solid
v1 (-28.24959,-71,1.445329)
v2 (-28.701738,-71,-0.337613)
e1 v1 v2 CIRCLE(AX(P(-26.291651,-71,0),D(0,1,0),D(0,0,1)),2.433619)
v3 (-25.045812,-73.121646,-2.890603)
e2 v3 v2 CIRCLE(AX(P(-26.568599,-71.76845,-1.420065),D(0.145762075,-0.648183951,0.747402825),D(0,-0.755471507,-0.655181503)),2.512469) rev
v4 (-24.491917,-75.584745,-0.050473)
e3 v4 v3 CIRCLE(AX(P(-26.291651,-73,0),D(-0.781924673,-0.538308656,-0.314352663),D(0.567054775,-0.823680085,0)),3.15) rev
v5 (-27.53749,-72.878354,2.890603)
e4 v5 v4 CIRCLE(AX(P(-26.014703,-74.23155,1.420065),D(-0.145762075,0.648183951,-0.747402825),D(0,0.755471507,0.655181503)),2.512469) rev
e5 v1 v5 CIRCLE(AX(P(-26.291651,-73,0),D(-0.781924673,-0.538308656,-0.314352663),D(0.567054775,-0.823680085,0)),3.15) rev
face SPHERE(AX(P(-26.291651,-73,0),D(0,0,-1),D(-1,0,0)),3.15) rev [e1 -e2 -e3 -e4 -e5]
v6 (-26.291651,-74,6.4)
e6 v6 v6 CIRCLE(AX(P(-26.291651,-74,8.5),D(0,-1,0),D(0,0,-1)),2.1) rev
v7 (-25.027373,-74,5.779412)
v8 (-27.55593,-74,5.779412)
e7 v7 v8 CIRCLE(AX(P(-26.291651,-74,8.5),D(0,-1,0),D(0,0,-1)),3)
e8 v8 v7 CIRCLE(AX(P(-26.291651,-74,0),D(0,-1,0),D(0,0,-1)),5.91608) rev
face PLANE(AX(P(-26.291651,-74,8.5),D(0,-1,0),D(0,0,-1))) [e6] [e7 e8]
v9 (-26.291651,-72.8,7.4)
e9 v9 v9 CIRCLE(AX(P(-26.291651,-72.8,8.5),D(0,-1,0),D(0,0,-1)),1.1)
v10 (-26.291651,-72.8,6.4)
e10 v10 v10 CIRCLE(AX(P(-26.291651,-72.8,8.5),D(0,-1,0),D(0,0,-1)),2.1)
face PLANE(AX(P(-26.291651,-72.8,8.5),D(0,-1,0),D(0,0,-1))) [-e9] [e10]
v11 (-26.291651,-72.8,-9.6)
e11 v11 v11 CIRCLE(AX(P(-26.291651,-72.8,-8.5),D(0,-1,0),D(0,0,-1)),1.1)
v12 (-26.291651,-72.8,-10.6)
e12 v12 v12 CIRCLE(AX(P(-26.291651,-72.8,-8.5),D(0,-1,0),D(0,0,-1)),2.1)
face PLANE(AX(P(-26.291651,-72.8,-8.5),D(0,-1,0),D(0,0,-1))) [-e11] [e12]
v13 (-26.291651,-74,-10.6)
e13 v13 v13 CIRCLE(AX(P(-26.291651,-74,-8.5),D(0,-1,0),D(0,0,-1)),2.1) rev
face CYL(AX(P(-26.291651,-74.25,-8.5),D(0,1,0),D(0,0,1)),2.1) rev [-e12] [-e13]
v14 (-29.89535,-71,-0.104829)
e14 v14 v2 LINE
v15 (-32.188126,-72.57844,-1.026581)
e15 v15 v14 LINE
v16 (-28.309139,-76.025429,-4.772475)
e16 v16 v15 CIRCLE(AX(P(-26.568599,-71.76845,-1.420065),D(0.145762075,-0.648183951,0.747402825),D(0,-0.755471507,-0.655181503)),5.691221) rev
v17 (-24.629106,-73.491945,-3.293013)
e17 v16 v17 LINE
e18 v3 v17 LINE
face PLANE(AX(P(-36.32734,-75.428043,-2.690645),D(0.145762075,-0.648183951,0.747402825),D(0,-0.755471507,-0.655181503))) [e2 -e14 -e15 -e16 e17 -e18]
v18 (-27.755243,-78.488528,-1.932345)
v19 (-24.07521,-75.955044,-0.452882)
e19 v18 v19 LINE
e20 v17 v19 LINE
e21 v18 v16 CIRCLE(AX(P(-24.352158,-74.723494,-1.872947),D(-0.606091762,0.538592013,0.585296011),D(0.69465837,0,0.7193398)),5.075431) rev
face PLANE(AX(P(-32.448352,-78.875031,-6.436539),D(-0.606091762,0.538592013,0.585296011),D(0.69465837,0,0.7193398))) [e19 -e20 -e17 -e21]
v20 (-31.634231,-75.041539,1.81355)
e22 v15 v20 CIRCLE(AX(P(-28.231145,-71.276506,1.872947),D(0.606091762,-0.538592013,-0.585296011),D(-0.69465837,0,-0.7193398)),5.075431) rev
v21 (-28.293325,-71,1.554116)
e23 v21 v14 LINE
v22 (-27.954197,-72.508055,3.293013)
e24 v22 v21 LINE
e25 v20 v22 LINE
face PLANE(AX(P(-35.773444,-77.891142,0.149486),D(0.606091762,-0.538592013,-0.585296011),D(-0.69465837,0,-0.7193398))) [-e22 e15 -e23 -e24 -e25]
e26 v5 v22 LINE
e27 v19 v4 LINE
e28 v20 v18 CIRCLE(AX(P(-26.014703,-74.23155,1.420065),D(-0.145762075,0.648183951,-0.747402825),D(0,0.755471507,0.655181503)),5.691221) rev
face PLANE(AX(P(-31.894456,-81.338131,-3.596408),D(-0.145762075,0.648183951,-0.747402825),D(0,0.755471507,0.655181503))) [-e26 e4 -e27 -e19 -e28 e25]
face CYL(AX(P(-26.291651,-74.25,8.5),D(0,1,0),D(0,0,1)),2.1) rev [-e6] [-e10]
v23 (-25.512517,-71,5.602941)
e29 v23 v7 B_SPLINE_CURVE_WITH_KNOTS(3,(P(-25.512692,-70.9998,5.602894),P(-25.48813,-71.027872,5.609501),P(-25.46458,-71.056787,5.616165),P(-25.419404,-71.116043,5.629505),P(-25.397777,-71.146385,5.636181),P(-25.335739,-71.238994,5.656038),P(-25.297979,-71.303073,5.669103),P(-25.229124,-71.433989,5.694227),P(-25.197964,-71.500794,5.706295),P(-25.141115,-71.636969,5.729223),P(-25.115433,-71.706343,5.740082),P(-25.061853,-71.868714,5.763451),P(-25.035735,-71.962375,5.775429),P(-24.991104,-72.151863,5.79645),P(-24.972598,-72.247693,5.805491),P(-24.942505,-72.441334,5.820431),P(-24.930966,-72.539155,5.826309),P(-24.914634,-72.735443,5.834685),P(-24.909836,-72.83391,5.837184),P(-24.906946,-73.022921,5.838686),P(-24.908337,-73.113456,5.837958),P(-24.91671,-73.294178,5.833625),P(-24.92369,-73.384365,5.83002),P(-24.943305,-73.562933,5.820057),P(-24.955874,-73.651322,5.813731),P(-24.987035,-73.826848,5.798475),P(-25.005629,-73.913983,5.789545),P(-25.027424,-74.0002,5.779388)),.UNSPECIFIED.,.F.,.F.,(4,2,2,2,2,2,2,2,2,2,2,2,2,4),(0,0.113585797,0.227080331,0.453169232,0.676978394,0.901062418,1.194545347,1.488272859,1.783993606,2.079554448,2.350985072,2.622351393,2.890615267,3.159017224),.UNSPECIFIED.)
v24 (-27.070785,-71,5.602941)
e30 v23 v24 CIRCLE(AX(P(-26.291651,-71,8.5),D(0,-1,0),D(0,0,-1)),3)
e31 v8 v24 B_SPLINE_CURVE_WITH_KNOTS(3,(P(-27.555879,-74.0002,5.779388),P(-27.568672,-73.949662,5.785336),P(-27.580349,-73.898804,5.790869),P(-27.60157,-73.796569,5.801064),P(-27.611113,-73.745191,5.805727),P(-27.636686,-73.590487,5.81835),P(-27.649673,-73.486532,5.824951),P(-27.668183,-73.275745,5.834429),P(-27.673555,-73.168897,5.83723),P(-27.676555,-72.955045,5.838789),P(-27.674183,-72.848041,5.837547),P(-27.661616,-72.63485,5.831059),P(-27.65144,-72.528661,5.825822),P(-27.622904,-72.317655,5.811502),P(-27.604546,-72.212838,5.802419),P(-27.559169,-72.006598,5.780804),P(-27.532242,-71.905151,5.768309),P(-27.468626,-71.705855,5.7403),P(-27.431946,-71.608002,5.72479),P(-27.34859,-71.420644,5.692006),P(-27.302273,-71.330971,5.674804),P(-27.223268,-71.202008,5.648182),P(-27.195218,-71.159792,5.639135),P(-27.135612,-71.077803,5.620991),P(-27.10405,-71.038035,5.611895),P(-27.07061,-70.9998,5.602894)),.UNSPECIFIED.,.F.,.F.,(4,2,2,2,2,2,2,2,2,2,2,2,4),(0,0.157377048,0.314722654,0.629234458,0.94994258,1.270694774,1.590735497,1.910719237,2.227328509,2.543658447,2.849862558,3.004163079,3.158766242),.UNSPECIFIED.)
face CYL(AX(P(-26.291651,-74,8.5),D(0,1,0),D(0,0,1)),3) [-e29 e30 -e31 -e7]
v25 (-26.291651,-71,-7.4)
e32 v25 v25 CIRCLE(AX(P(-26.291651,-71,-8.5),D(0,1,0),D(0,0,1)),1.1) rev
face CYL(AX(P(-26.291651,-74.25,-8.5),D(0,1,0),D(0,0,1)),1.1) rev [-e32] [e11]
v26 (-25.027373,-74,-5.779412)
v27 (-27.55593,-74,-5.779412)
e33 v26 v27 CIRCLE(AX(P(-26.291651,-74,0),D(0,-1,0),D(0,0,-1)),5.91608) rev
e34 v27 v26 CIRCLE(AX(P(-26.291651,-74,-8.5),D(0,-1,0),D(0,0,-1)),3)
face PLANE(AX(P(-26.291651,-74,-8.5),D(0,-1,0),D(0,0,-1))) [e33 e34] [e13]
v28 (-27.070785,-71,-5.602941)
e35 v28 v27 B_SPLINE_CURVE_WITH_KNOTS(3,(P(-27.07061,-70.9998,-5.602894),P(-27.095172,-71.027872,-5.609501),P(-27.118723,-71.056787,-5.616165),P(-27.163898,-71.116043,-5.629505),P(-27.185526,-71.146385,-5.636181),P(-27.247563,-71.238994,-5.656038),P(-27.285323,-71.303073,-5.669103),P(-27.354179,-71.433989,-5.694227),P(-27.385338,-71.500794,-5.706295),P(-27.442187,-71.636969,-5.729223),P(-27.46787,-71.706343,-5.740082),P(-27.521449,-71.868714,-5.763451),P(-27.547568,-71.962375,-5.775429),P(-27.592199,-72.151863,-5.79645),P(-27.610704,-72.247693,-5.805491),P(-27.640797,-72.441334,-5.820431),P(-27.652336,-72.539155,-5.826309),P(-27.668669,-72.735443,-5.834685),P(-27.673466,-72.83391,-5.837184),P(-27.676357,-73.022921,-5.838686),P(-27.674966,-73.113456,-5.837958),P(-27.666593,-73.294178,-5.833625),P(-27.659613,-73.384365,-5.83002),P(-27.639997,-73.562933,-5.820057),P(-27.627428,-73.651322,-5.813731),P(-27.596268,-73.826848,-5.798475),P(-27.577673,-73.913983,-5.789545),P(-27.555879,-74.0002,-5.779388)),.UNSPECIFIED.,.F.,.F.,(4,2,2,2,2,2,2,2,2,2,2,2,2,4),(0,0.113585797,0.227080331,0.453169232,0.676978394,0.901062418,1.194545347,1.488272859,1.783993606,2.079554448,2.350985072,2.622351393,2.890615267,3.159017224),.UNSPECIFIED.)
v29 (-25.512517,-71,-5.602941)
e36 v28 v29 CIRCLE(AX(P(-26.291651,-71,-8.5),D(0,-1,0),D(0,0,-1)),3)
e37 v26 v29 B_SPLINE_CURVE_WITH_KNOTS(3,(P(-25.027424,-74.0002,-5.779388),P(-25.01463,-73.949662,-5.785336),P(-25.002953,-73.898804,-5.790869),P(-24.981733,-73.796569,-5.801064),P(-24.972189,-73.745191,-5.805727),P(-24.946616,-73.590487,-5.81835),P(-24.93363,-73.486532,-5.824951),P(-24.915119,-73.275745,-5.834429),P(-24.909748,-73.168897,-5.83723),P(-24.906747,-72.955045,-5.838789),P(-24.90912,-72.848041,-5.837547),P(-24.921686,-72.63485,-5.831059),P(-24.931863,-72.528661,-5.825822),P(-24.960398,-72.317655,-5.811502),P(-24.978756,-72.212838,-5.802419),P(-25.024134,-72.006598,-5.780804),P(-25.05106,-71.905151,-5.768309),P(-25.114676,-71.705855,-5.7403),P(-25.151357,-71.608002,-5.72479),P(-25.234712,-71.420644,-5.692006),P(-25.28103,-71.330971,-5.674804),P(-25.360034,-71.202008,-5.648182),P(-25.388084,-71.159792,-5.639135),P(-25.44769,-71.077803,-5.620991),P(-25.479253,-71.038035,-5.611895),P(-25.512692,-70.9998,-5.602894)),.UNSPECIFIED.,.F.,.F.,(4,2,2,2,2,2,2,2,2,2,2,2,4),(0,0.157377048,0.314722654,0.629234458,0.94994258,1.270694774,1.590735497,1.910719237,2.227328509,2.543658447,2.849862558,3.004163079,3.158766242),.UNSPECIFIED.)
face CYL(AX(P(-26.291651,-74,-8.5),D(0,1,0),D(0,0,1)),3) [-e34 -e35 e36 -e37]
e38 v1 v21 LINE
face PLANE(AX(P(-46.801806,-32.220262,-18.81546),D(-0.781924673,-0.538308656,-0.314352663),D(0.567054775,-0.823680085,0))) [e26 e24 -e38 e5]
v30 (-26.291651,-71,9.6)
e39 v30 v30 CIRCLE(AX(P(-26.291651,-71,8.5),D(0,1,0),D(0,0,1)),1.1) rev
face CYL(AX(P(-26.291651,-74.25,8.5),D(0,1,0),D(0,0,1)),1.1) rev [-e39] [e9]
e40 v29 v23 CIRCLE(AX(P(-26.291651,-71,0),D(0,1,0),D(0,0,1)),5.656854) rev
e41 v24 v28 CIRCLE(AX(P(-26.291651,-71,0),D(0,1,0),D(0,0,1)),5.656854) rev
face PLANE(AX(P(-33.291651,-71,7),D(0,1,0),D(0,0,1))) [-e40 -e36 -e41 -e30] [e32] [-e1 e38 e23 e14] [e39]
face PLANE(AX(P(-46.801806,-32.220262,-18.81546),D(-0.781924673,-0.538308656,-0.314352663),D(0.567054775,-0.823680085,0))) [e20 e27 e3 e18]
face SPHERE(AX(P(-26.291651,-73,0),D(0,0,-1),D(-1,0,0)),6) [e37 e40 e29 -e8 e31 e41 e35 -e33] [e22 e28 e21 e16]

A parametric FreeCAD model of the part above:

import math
import FreeCAD as App
import Part
import Sketcher
from FreeCAD import Vector


def add_polygon(sketch, points):
    """Adds a closed chain of lines whose ends are joined by coincident constraints."""
    first, n = sketch.GeometryCount, len(points)
    for a, b in zip(points, points[1:] + points[:1]):
        sketch.addGeometry(Part.LineSegment(App.Vector(*a, 0), App.Vector(*b, 0)), False)
    for i in range(n):
        sketch.addConstraint(Sketcher.Constraint("Coincident", first + i, 2, first + (i + 1) % n, 1))

doc = App.newDocument("Part")
params = doc.addObject("Spreadsheet::Sheet", "Params")
for row, (alias, value) in enumerate([
    ("sketch1_radius", "6 mm"),
    ("revolution_angle", "360 deg"),
    ("sketch2_width", "14 mm"),
    ("sketch2_height", "5 mm"),
    ("pocket1_length", "14 mm"),
    ("sketch3_diameter", "6 mm"),
    ("pad1_length", "3 mm"),
    ("sketch4_diameter", "6 mm"),
    ("pad2_length", "3 mm"),
    ("sketch5_radius", "3.15 mm"),
    ("groove_angle", "360 deg"),
    ("sketch6_diameter", "2.2 mm"),
    ("pocket2_length", "4.25 mm"),
    ("sketch7_diameter", "4.2 mm"),
    ("pocket3_length", "1.45 mm"),
    ("sketch8_diameter", "2.2 mm"),
    ("pocket4_length", "4.25 mm"),
    ("sketch9_diameter", "4.2 mm"),
    ("pocket5_length", "1.45 mm"),
    ("sketch10_length", "6.4 mm"),
    ("sketch10_length2", "3.8 mm"),
    ("pocket6_length", "10 mm"),
], start=1):
    params.set(f"A{row}", alias)
    params.set(f"B{row}", "=" + value)
    params.setAlias(f"B{row}", alias)

body = doc.addObject("PartDesign::Body", "Body")

# Sketch on XZ plane
sketch1 = body.newObject("Sketcher::SketchObject", "Sketch")
sketch1.AttachmentSupport = (doc.getObject("XZ_Plane"), [""])
sketch1.MapMode = "FlatFace"
sketch1.AttachmentOffset = App.Placement(Vector(0, 0, 73), App.Rotation())
sketch1.addGeometry([
    Part.LineSegment(Vector(-26, 6, 0), Vector(-26, -6, 0)),
    Part.ArcOfCircle(Part.Circle(Vector(-26, 0, 0), Vector(0, 0, 1), 6), math.radians(-90), math.radians(90)),
], False)
sketch1.addGeometry(Part.LineSegment(Vector(-26, -6, 0), Vector(-26, 6, 0)), True)  # axis
sketch1.addConstraint([
    Sketcher.Constraint("Coincident", 0, 1, 1, 2),
    Sketcher.Constraint("Coincident", 1, 1, 0, 2),
    Sketcher.Constraint("Vertical", 0),
    Sketcher.Constraint("Vertical", 2),
    Sketcher.Constraint("Coincident", 2, 1, 1, 1),
    Sketcher.Constraint("PointOnObject", 1, 3, -1),
    Sketcher.Constraint("Vertical", 1, 3, 0, 1),
    Sketcher.Constraint("Equal", 0, 2),
    Sketcher.Constraint("Radius", 1, 6.0),
    Sketcher.Constraint("DistanceX", 1, 3, -1, 1, 26.291651),
])
sketch1.setExpression("Constraints[8]", "Params.sketch1_radius")
revolution = body.newObject("PartDesign::Revolution", "Revolution")
revolution.Profile = sketch1
revolution.ReferenceAxis = (sketch1, ["Axis0"])
revolution.setExpression("Angle", "Params.revolution_angle")

# Sketch on XY plane
sketch2 = body.newObject("Sketcher::SketchObject", "Sketch001")
sketch2.AttachmentSupport = (doc.getObject("XY_Plane"), [""])
sketch2.MapMode = "FlatFace"
sketch2.AttachmentOffset = App.Placement(Vector(0, 0, -7), App.Rotation())
add_polygon(sketch2, [(-33, -66), (-33, -71), (-19, -71), (-19, -66)])  # lines 0-3
sketch2.addConstraint([
    Sketcher.Constraint("Vertical", 0),
    Sketcher.Constraint("Horizontal", 1),
    Sketcher.Constraint("Vertical", 2),
    Sketcher.Constraint("Horizontal", 3),
    Sketcher.Constraint("DistanceX", 1, 1, 1, 2, 14.0),
    Sketcher.Constraint("DistanceY", 0, 2, 0, 1, 5.0),
    Sketcher.Constraint("DistanceY", 0, 2, -1, 1, 71.0),
    Sketcher.Constraint("DistanceX", 0, 2, -1, 1, 33.291651),
])
sketch2.setExpression("Constraints[8]", "Params.sketch2_width")
sketch2.setExpression("Constraints[9]", "Params.sketch2_height")
pocket1 = body.newObject("PartDesign::Pocket", "Pocket")
pocket1.Profile = sketch2
pocket1.setExpression("Length", "Params.pocket1_length")
pocket1.Reversed = True

# Sketch on XZ plane
sketch3 = body.newObject("Sketcher::SketchObject", "Sketch002")
sketch3.AttachmentSupport = (doc.getObject("XZ_Plane"), [""])
sketch3.MapMode = "FlatFace"
sketch3.AttachmentOffset = App.Placement(Vector(0, 0, 71), App.Rotation())
sketch3.addGeometry(Part.Circle(Vector(-26.3, -8.5, 0), Vector(0, 0, 1), 3), False)
sketch3.addConstraint([
    Sketcher.Constraint("Diameter", 0, 6.0),
    Sketcher.Constraint("DistanceY", 0, 3, -1, 1, 8.5),
    Sketcher.Constraint("DistanceX", 0, 3, -1, 1, 26.291651),
])
sketch3.setExpression("Constraints[0]", "Params.sketch3_diameter")
pad1 = body.newObject("PartDesign::Pad", "Pad")
pad1.Profile = sketch3
pad1.setExpression("Length", "Params.pad1_length")

# Sketch on XZ plane
sketch4 = body.newObject("Sketcher::SketchObject", "Sketch003")
sketch4.AttachmentSupport = (doc.getObject("XZ_Plane"), [""])
sketch4.MapMode = "FlatFace"
sketch4.AttachmentOffset = App.Placement(Vector(0, 0, 71), App.Rotation())
sketch4.addGeometry(Part.Circle(Vector(-26.3, 8.5, 0), Vector(0, 0, 1), 3), False)
sketch4.addConstraint([
    Sketcher.Constraint("Diameter", 0, 6.0),
    Sketcher.Constraint("DistanceY", -1, 1, 0, 3, 8.5),
    Sketcher.Constraint("DistanceX", 0, 3, -1, 1, 26.291651),
])
sketch4.setExpression("Constraints[0]", "Params.sketch4_diameter")
pad2 = body.newObject("PartDesign::Pad", "Pad001")
pad2.Profile = sketch4
pad2.setExpression("Length", "Params.pad2_length")

# Sketch on XZ plane
sketch5 = body.newObject("Sketcher::SketchObject", "Sketch004")
sketch5.AttachmentSupport = (doc.getObject("XZ_Plane"), [""])
sketch5.MapMode = "FlatFace"
sketch5.AttachmentOffset = App.Placement(Vector(0, 0, 73), App.Rotation())
sketch5.addGeometry([
    Part.LineSegment(Vector(-26.3, 3.1, 0), Vector(-26.3, -3.1, 0)),
    Part.ArcOfCircle(Part.Circle(Vector(-26.3, 0, 0), Vector(0, 0, 1), 3.1), math.radians(-90), math.radians(90)),
], False)
sketch5.addGeometry(Part.LineSegment(Vector(-26.3, -3.1, 0), Vector(-26.3, 3.1, 0)), True)  # axis
sketch5.addConstraint([
    Sketcher.Constraint("Coincident", 0, 1, 1, 2),
    Sketcher.Constraint("Coincident", 1, 1, 0, 2),
    Sketcher.Constraint("Vertical", 0),
    Sketcher.Constraint("Vertical", 2),
    Sketcher.Constraint("Coincident", 2, 1, 1, 1),
    Sketcher.Constraint("PointOnObject", 1, 3, -1),
    Sketcher.Constraint("Vertical", 1, 3, 0, 1),
    Sketcher.Constraint("Equal", 0, 2),
    Sketcher.Constraint("Radius", 1, 3.15),
    Sketcher.Constraint("DistanceX", 1, 3, -1, 1, 26.291651),
])
sketch5.setExpression("Constraints[8]", "Params.sketch5_radius")
groove = body.newObject("PartDesign::Groove", "Groove")
groove.Profile = sketch5
groove.ReferenceAxis = (sketch5, ["Axis0"])
groove.setExpression("Angle", "Params.groove_angle")

# Sketch on XZ plane
sketch6 = body.newObject("Sketcher::SketchObject", "Sketch005")
sketch6.AttachmentSupport = (doc.getObject("XZ_Plane"), [""])
sketch6.MapMode = "FlatFace"
sketch6.AttachmentOffset = App.Placement(Vector(0, 0, 70), App.Rotation())
sketch6.addGeometry(Part.Circle(Vector(-26.3, -8.5, 0), Vector(0, 0, 1), 1.1), False)
sketch6.addConstraint([
    Sketcher.Constraint("Diameter", 0, 2.2),
    Sketcher.Constraint("DistanceY", 0, 3, -1, 1, 8.5),
    Sketcher.Constraint("DistanceX", 0, 3, -1, 1, 26.291651),
])
sketch6.setExpression("Constraints[0]", "Params.sketch6_diameter")
pocket2 = body.newObject("PartDesign::Pocket", "Pocket001")
pocket2.Profile = sketch6
pocket2.setExpression("Length", "Params.pocket2_length")
pocket2.Reversed = True

# Sketch on XZ plane
sketch7 = body.newObject("Sketcher::SketchObject", "Sketch006")
sketch7.AttachmentSupport = (doc.getObject("XZ_Plane"), [""])
sketch7.MapMode = "FlatFace"
sketch7.AttachmentOffset = App.Placement(Vector(0, 0, 72.8), App.Rotation())
sketch7.addGeometry(Part.Circle(Vector(-26.3, -8.5, 0), Vector(0, 0, 1), 2.1), False)
sketch7.addConstraint([
    Sketcher.Constraint("Diameter", 0, 4.2),
    Sketcher.Constraint("DistanceY", 0, 3, -1, 1, 8.5),
    Sketcher.Constraint("DistanceX", 0, 3, -1, 1, 26.291651),
])
sketch7.setExpression("Constraints[0]", "Params.sketch7_diameter")
pocket3 = body.newObject("PartDesign::Pocket", "Pocket002")
pocket3.Profile = sketch7
pocket3.setExpression("Length", "Params.pocket3_length")
pocket3.Reversed = True

# Sketch on XZ plane
sketch8 = body.newObject("Sketcher::SketchObject", "Sketch007")
sketch8.AttachmentSupport = (doc.getObject("XZ_Plane"), [""])
sketch8.MapMode = "FlatFace"
sketch8.AttachmentOffset = App.Placement(Vector(0, 0, 70), App.Rotation())
sketch8.addGeometry(Part.Circle(Vector(-26.3, 8.5, 0), Vector(0, 0, 1), 1.1), False)
sketch8.addConstraint([
    Sketcher.Constraint("Diameter", 0, 2.2),
    Sketcher.Constraint("DistanceY", -1, 1, 0, 3, 8.5),
    Sketcher.Constraint("DistanceX", 0, 3, -1, 1, 26.291651),
])
sketch8.setExpression("Constraints[0]", "Params.sketch8_diameter")
pocket4 = body.newObject("PartDesign::Pocket", "Pocket003")
pocket4.Profile = sketch8
pocket4.setExpression("Length", "Params.pocket4_length")
pocket4.Reversed = True

# Sketch on XZ plane
sketch9 = body.newObject("Sketcher::SketchObject", "Sketch008")
sketch9.AttachmentSupport = (doc.getObject("XZ_Plane"), [""])
sketch9.MapMode = "FlatFace"
sketch9.AttachmentOffset = App.Placement(Vector(0, 0, 72.8), App.Rotation())
sketch9.addGeometry(Part.Circle(Vector(-26.3, 8.5, 0), Vector(0, 0, 1), 2.1), False)
sketch9.addConstraint([
    Sketcher.Constraint("Diameter", 0, 4.2),
    Sketcher.Constraint("DistanceY", -1, 1, 0, 3, 8.5),
    Sketcher.Constraint("DistanceX", 0, 3, -1, 1, 26.291651),
])
sketch9.setExpression("Constraints[0]", "Params.sketch9_diameter")
pocket5 = body.newObject("PartDesign::Pocket", "Pocket004")
pocket5.Profile = sketch9
pocket5.setExpression("Length", "Params.pocket5_length")
pocket5.Reversed = True

# Sketch on an angled plane
sketch10 = body.newObject("Sketcher::SketchObject", "Sketch009")
sketch10.Placement = App.Placement(Vector(-46.801806, -32.220262, -18.81546), App.Rotation(Vector(-0.258926028, -0.178255179, 0.949306275), Vector(-0.567054775, 0.823680085, 0), Vector(-0.781924673, -0.538308656, -0.314352663), "ZXY"))
add_polygon(sketch10, [(20.3, -41.5), (16.4, -46.6), (19.3, -48.9), (23.3, -43.9)])  # lines 0-3
sketch10.addConstraint([
    Sketcher.Constraint("Perpendicular", 0, 1),
    Sketcher.Constraint("Perpendicular", 1, 2),
    Sketcher.Constraint("Perpendicular", 2, 3),
    Sketcher.Constraint("Distance", 0, 6.4),
    Sketcher.Constraint("Distance", 1, 3.8),
    Sketcher.Constraint("DistanceY", 0, 2, -1, 1, 46.5678),
    Sketcher.Constraint("DistanceX", -1, 1, 0, 2, 16.351359),
    Sketcher.Constraint("DistanceY", 2, 2, -1, 1, 43.87188),
])
sketch10.setExpression("Constraints[7]", "Params.sketch10_length")
sketch10.setExpression("Constraints[8]", "Params.sketch10_length2")
pocket6 = body.newObject("PartDesign::Pocket", "Pocket005")
pocket6.Profile = sketch10
pocket6.setExpression("Length", "Params.pocket6_length")
pocket6.Reversed = True

doc.recompute()
